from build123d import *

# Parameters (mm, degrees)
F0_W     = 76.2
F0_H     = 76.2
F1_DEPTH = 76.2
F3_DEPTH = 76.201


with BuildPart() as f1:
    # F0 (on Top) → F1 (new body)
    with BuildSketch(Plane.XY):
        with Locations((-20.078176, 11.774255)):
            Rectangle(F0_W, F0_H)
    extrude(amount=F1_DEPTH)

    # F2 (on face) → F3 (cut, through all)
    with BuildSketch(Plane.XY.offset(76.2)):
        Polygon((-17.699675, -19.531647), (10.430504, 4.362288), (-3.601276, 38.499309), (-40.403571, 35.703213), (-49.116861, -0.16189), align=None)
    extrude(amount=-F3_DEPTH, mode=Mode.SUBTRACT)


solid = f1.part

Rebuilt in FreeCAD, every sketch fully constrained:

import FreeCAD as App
import Part
import Sketcher
Q = App.Units.Quantity

doc = App.newDocument("Part")
body = doc.addObject("PartDesign::Body", "Body")

sketch1 = doc.addObject("Sketcher::SketchObject", "Sketch")
body.addObject(sketch1)
sketch1.AttachmentSupport = (doc.XY_Plane, [""])
sketch1.MapMode = "FlatFace"
sketch1.addGeometry(Part.LineSegment(App.Vector(-58, 50, 0), App.Vector(-58, -26, 0)), False)
sketch1.addGeometry(Part.LineSegment(App.Vector(-58, -26, 0), App.Vector(18, -26, 0)), False)
sketch1.addGeometry(Part.LineSegment(App.Vector(18, -26, 0), App.Vector(18, 50, 0)), False)
sketch1.addGeometry(Part.LineSegment(App.Vector(18, 50, 0), App.Vector(-58, 50, 0)), False)
sketch1.addConstraint(Sketcher.Constraint("Coincident", 0, 2, 1, 1))
sketch1.addConstraint(Sketcher.Constraint("Coincident", 1, 2, 2, 1))
sketch1.addConstraint(Sketcher.Constraint("Coincident", 2, 2, 3, 1))
sketch1.addConstraint(Sketcher.Constraint("Coincident", 3, 2, 0, 1))
sketch1.addConstraint(Sketcher.Constraint("Vertical", 0))
sketch1.addConstraint(Sketcher.Constraint("Horizontal", 1))
sketch1.addConstraint(Sketcher.Constraint("Vertical", 2))
sketch1.addConstraint(Sketcher.Constraint("Horizontal", 3))
sketch1.addConstraint(Sketcher.Constraint("Equal", 3, 0))
sketch1.addConstraint(Sketcher.Constraint("DistanceX", 1, 1, 1, 2, Q("3 in")))
sketch1.addConstraint(Sketcher.Constraint("DistanceX", 0, 2, -1, 1, Q("58.178176 mm")))
sketch1.addConstraint(Sketcher.Constraint("DistanceY", 0, 2, -1, 1, Q("26.325745 mm")))
pad1 = doc.addObject("PartDesign::Pad", "Pad")
body.addObject(pad1)
pad1.Profile = sketch1
pad1.Length = Q("3 in")

sketch2 = doc.addObject("Sketcher::SketchObject", "Sketch001")
body.addObject(sketch2)
sketch2.AttachmentSupport = (doc.XY_Plane, [""])
sketch2.MapMode = "FlatFace"
sketch2.AttachmentOffset = App.Placement(App.Vector(0, 0, 3 * 25.4), App.Rotation())
sketch2.addGeometry(Part.LineSegment(App.Vector(-18, -20, 0), App.Vector(10, 4, 0)), False)
sketch2.addGeometry(Part.LineSegment(App.Vector(10, 4, 0), App.Vector(-4, 38, 0)), False)
sketch2.addGeometry(Part.LineSegment(App.Vector(-4, 38, 0), App.Vector(-40, 36, 0)), False)
sketch2.addGeometry(Part.LineSegment(App.Vector(-40, 36, 0), App.Vector(-49, 0, 0)), False)
sketch2.addGeometry(Part.LineSegment(App.Vector(-49, 0, 0), App.Vector(-18, -20, 0)), False)
sketch2.addConstraint(Sketcher.Constraint("Coincident", 0, 2, 1, 1))
sketch2.addConstraint(Sketcher.Constraint("Coincident", 1, 2, 2, 1))
sketch2.addConstraint(Sketcher.Constraint("Coincident", 2, 2, 3, 1))
sketch2.addConstraint(Sketcher.Constraint("Coincident", 3, 2, 4, 1))
sketch2.addConstraint(Sketcher.Constraint("Coincident", 4, 2, 0, 1))
sketch2.addConstraint(Sketcher.Constraint("Equal", 0, 1))
sketch2.addConstraint(Sketcher.Constraint("Equal", 1, 2))
sketch2.addConstraint(Sketcher.Constraint("Equal", 2, 3))
sketch2.addConstraint(Sketcher.Constraint("Equal", 3, 4))
sketch2.addConstraint(Sketcher.Constraint("DistanceY", 3, 2, 1, 2, Q("38.661199 mm")))
sketch2.addConstraint(Sketcher.Constraint("DistanceX", 4, 2, 1, 2, Q("14.098399 mm")))
sketch2.addConstraint(Sketcher.Constraint("Distance", 0, Q("36.908361 mm")))
sketch2.addConstraint(Sketcher.Constraint("DistanceY", -1, 1, 0, 2, Q("4.362288 mm")))
sketch2.addConstraint(Sketcher.Constraint("DistanceY", -1, 1, 1, 2, Q("38.499309 mm")))
sketch2.addConstraint(Sketcher.Constraint("DistanceX", 2, 2, -1, 1, Q("40.403571 mm")))
pocket1 = doc.addObject("PartDesign::Pocket", "Pocket")
body.addObject(pocket1)
pocket1.Profile = sketch2
pocket1.Type = "ThroughAll"

doc.recompute()
